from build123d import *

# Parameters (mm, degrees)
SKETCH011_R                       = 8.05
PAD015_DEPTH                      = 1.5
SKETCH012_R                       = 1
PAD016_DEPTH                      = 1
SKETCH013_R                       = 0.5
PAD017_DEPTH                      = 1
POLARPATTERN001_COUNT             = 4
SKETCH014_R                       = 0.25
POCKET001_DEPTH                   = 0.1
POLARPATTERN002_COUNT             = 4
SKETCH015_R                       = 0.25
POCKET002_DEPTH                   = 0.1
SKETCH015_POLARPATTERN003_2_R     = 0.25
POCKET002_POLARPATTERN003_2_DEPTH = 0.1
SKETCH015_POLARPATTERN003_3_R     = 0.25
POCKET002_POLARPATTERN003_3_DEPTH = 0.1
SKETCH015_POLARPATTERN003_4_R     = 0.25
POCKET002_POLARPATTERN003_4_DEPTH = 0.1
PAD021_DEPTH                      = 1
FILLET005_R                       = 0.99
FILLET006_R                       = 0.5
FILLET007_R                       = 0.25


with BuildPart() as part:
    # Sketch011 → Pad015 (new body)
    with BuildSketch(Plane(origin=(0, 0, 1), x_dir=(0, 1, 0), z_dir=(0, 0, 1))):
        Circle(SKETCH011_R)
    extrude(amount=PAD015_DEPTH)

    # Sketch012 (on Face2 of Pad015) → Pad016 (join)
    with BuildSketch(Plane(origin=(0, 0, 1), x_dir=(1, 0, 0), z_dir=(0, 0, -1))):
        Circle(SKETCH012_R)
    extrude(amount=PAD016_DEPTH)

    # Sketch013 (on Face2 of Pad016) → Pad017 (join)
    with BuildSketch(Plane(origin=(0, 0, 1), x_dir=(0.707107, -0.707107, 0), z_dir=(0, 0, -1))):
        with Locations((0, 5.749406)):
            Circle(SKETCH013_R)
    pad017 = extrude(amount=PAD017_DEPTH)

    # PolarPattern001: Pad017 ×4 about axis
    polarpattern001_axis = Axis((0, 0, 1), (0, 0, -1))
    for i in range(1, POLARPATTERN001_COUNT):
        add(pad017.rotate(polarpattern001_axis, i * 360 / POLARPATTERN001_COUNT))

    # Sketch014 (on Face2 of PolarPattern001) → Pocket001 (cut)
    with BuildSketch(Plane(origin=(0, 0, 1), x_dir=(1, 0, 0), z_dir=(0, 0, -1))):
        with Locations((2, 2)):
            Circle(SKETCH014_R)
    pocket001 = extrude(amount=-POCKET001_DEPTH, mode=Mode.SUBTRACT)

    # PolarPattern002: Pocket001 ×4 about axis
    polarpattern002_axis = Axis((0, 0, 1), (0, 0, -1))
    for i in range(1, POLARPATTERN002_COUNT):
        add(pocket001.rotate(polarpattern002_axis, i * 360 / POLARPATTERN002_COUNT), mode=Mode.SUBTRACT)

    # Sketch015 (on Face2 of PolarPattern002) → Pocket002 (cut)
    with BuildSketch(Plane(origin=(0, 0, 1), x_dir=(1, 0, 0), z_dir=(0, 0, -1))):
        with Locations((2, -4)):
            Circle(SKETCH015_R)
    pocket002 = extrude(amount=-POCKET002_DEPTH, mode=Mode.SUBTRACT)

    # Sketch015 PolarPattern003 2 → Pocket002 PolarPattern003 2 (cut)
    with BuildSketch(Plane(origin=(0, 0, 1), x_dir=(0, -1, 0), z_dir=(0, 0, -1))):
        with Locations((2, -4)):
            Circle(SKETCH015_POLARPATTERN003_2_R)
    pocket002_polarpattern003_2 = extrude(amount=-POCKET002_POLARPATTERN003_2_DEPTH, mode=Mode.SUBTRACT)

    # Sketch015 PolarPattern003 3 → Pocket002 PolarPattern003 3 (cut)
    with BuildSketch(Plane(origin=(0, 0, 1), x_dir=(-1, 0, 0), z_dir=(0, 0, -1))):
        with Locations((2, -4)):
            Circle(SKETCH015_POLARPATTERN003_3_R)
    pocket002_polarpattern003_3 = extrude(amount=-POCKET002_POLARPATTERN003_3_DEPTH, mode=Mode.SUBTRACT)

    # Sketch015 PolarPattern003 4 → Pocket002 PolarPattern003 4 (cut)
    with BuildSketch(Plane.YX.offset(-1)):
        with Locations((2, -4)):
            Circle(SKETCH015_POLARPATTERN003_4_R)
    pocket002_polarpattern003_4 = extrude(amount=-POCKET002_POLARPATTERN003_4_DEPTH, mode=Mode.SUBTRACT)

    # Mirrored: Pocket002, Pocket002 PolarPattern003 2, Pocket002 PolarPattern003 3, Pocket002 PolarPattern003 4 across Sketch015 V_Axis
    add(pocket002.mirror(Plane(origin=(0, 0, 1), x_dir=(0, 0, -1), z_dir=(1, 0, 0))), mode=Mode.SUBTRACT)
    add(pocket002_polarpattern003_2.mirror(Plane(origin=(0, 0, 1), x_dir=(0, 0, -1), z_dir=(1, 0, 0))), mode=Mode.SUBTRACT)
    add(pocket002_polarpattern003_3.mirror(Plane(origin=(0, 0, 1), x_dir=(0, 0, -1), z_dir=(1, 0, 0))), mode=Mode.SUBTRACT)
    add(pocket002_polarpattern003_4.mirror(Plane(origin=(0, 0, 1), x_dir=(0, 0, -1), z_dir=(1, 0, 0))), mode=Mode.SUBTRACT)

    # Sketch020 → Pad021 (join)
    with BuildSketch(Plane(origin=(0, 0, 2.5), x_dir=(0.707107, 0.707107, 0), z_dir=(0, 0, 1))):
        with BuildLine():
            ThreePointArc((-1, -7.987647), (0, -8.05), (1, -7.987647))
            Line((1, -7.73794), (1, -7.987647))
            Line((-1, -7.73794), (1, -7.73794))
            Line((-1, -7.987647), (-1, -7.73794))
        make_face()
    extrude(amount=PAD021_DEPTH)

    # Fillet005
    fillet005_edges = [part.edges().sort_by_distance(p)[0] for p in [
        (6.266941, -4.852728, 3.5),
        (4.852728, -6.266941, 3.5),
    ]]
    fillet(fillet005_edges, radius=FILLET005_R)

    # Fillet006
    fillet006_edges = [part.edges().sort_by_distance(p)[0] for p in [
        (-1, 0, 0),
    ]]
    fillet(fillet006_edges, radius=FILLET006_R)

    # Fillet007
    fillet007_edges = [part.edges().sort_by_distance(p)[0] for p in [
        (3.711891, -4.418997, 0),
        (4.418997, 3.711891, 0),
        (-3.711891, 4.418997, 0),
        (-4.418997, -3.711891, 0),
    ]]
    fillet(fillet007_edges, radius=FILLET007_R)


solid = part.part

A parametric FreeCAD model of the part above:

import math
import FreeCAD as App
import Part
import Sketcher

V = App.Vector
Q = App.Units.Quantity


def edges_at(feature, points):
    """Names of the edges that pass closest to the given points."""
    edges = feature.Shape.Edges
    near = lambda p: min(range(len(edges)), key=lambda i: edges[i].distToShape(Part.Vertex(*p))[0])
    return sorted({f"Edge{near(p) + 1}" for p in points})

doc = App.newDocument("Part")
body = doc.addObject("PartDesign::Body", "Body")

# Sketch on XY plane
sketch1 = body.newObject("Sketcher::SketchObject", "Sketch")
sketch1.AttachmentSupport = (doc.getObject("XY_Plane"), [""])
sketch1.MapMode = "FlatFace"
sketch1.AttachmentOffset = App.Placement(V(0, 0, 1), App.Rotation())
sketch1.addGeometry(Part.Circle(V(0, 0, 0), V(0, 0, 1), 8.05), False)
sketch1.addConstraint([
    Sketcher.Constraint("Coincident", 0, 3, -1, 1),
    Sketcher.Constraint("Diameter", 0, 16.1),
])
pad1 = body.newObject("PartDesign::Pad", "Pad")
pad1.Profile = sketch1
pad1.Length = 1.5

# Sketch on XY plane
sketch2 = body.newObject("Sketcher::SketchObject", "Sketch001")
sketch2.AttachmentSupport = (doc.getObject("XY_Plane"), [""])
sketch2.MapMode = "FlatFace"
sketch2.AttachmentOffset = App.Placement(V(0, 0, 1), App.Rotation())
sketch2.addGeometry(Part.Circle(V(0, 0, 0), V(0, 0, 1), 1), False)
sketch2.addConstraint([
    Sketcher.Constraint("Coincident", 0, 3, -1, 1),
    Sketcher.Constraint("Diameter", 0, 2.0),
])
pad2 = body.newObject("PartDesign::Pad", "Pad001")
pad2.Profile = sketch2
pad2.Length = 1
pad2.Reversed = True

# Sketch on XY plane
sketch3 = body.newObject("Sketcher::SketchObject", "Sketch002")
sketch3.AttachmentSupport = (doc.getObject("XY_Plane"), [""])
sketch3.MapMode = "FlatFace"
sketch3.AttachmentOffset = App.Placement(V(0, 0, 1), App.Rotation())
sketch3.addGeometry(Part.Circle(V(-4.065444, -4.065444, 0), V(0, 0, 1), 0.5), False)
sketch3.addConstraint([
    Sketcher.Constraint("Diameter", 0, 1.0),
    Sketcher.Constraint("DistanceX", 0, 3, -1, 1, 4.065444),
    Sketcher.Constraint("DistanceY", 0, 3, -1, 1, 4.065444),
])
pad3 = body.newObject("PartDesign::Pad", "Pad002")
pad3.Profile = sketch3
pad3.Length = 1
pad3.Reversed = True
doc.recompute()

polarpattern = body.newObject("PartDesign::PolarPattern", "PolarPattern")
polarpattern.Originals = [pad3]
polarpattern.Axis = (doc.getObject("Z_Axis"), [""])
polarpattern.Angle = 360
polarpattern.Occurrences = 4
body.Tip = polarpattern

# Sketch on XY plane
sketch4 = body.newObject("Sketcher::SketchObject", "Sketch003")
sketch4.AttachmentSupport = (doc.getObject("XY_Plane"), [""])
sketch4.MapMode = "FlatFace"
sketch4.AttachmentOffset = App.Placement(V(0, 0, 1), App.Rotation())
sketch4.addGeometry(Part.Circle(V(2, -2, 0), V(0, 0, 1), 0.25), False)
sketch4.addConstraint([
    Sketcher.Constraint("Diameter", 0, 0.5),
    Sketcher.Constraint("DistanceX", -1, 1, 0, 3, 2.0),
    Sketcher.Constraint("DistanceY", 0, 3, -1, 1, 2.0),
])
pocket1 = body.newObject("PartDesign::Pocket", "Pocket")
pocket1.Profile = sketch4
pocket1.Length = 0.1
pocket1.Reversed = True
doc.recompute()

polarpattern2 = body.newObject("PartDesign::PolarPattern", "PolarPattern001")
polarpattern2.Originals = [pocket1]
polarpattern2.Axis = (doc.getObject("Z_Axis"), [""])
polarpattern2.Angle = 360
polarpattern2.Occurrences = 4
body.Tip = polarpattern2

# Sketch on XY plane
sketch5 = body.newObject("Sketcher::SketchObject", "Sketch004")
sketch5.AttachmentSupport = (doc.getObject("XY_Plane"), [""])
sketch5.MapMode = "FlatFace"
sketch5.AttachmentOffset = App.Placement(V(0, 0, 1), App.Rotation())
sketch5.addGeometry(Part.Circle(V(2, 4, 0), V(0, 0, 1), 0.25), False)
sketch5.addConstraint([
    Sketcher.Constraint("Diameter", 0, 0.5),
    Sketcher.Constraint("DistanceX", -1, 1, 0, 3, 2.0),
    Sketcher.Constraint("DistanceY", -1, 1, 0, 3, 4.0),
])
pocket2 = body.newObject("PartDesign::Pocket", "Pocket001")
pocket2.Profile = sketch5
pocket2.Length = 0.1
pocket2.Reversed = True

# Sketch on XY plane
sketch6 = body.newObject("Sketcher::SketchObject", "Sketch005")
sketch6.AttachmentSupport = (doc.getObject("XY_Plane"), [""])
sketch6.MapMode = "FlatFace"
sketch6.AttachmentOffset = App.Placement(V(0, 0, 1), App.Rotation())
sketch6.addGeometry(Part.Circle(V(4, -2, 0), V(0, 0, 1), 0.25), False)
sketch6.addConstraint([
    Sketcher.Constraint("Diameter", 0, 0.5),
    Sketcher.Constraint("DistanceX", -1, 1, 0, 3, 4.0),
    Sketcher.Constraint("DistanceY", 0, 3, -1, 1, 2.0),
])
pocket3 = body.newObject("PartDesign::Pocket", "Pocket002")
pocket3.Profile = sketch6
pocket3.Length = 0.1
pocket3.Reversed = True

# Sketch on XY plane
sketch7 = body.newObject("Sketcher::SketchObject", "Sketch006")
sketch7.AttachmentSupport = (doc.getObject("XY_Plane"), [""])
sketch7.MapMode = "FlatFace"
sketch7.AttachmentOffset = App.Placement(V(0, 0, 1), App.Rotation())
sketch7.addGeometry(Part.Circle(V(-2, -4, 0), V(0, 0, 1), 0.25), False)
sketch7.addConstraint([
    Sketcher.Constraint("Diameter", 0, 0.5),
    Sketcher.Constraint("DistanceX", 0, 3, -1, 1, 2.0),
    Sketcher.Constraint("DistanceY", 0, 3, -1, 1, 4.0),
])
pocket4 = body.newObject("PartDesign::Pocket", "Pocket003")
pocket4.Profile = sketch7
pocket4.Length = 0.1
pocket4.Reversed = True

# Sketch on XY plane
sketch8 = body.newObject("Sketcher::SketchObject", "Sketch007")
sketch8.AttachmentSupport = (doc.getObject("XY_Plane"), [""])
sketch8.MapMode = "FlatFace"
sketch8.AttachmentOffset = App.Placement(V(0, 0, 1), App.Rotation())
sketch8.addGeometry(Part.Circle(V(-4, 2, 0), V(0, 0, 1), 0.25), False)
sketch8.addConstraint([
    Sketcher.Constraint("Diameter", 0, 0.5),
    Sketcher.Constraint("DistanceX", 0, 3, -1, 1, 4.0),
    Sketcher.Constraint("DistanceY", -1, 1, 0, 3, 2.0),
])
pocket5 = body.newObject("PartDesign::Pocket", "Pocket004")
pocket5.Profile = sketch8
pocket5.Length = 0.1
pocket5.Reversed = True
doc.recompute()

mirrored = body.newObject("PartDesign::Mirrored", "Mirrored")
mirrored.Originals = [pocket2, pocket3, pocket4, pocket5]
mirrored.MirrorPlane = (doc.getObject("YZ_Plane"), [""])
body.Tip = mirrored

# Sketch on XY plane
sketch9 = body.newObject("Sketcher::SketchObject", "Sketch008")
sketch9.AttachmentSupport = (doc.getObject("XY_Plane"), [""])
sketch9.MapMode = "FlatFace"
sketch9.AttachmentOffset = App.Placement(V(0, 0, 2.5), App.Rotation())
sketch9.addGeometry([
    Part.ArcOfCircle(Part.Circle(V(-0.000026, 0.000026, 0), V(0, 0, 1), 8.050037), math.radians(-52.135889), math.radians(-37.864111)),
    Part.LineSegment(V(6.355226, -4.941013, 0), V(6.178657, -4.764443, 0)),
    Part.LineSegment(V(6.178657, -4.764443, 0), V(4.764443, -6.178657, 0)),
    Part.LineSegment(V(4.764443, -6.178657, 0), V(4.941013, -6.355226, 0)),
], False)
sketch9.addConstraint([
    Sketcher.Constraint("Coincident", 0, 2, 1, 1),
    Sketcher.Constraint("Coincident", 1, 2, 2, 1),
    Sketcher.Constraint("Coincident", 2, 2, 3, 1),
    Sketcher.Constraint("Coincident", 3, 2, 0, 1),
    Sketcher.Constraint("Perpendicular", 1, 2),
    Sketcher.Constraint("Perpendicular", 2, 3),
    Sketcher.Constraint("Equal", 1, 3),
    Sketcher.Constraint("Angle", 1, Q("135 deg")),
    Sketcher.Constraint("Distance", 2, 2.0),
    Sketcher.Constraint("Radius", 0, 8.050037),
    Sketcher.Constraint("DistanceX", 1, 2, 0, 2, 0.17657),
    Sketcher.Constraint("DistanceX", -1, 1, 0, 2, 6.355226),
    Sketcher.Constraint("DistanceY", 0, 2, -1, 1, 4.941013),
])
pad4 = body.newObject("PartDesign::Pad", "Pad003")
pad4.Profile = sketch9
pad4.Length = 1
doc.recompute()

fillet = body.newObject("PartDesign::Fillet", "Fillet")
fillet.Base = (pad4, edges_at(pad4, [(6.267, -4.853, 3.5), (4.853, -6.267, 3.5)]))
fillet.Radius = 0.99
doc.recompute()

fillet2 = body.newObject("PartDesign::Fillet", "Fillet001")
fillet2.Base = (fillet, edges_at(fillet, [(-1, 0, 0)]))
fillet2.Radius = 0.5
doc.recompute()

fillet3 = body.newObject("PartDesign::Fillet", "Fillet002")
fillet3.Base = (fillet2, edges_at(fillet2, [
    (3.712, -4.419, 0),
    (4.419, 3.712, 0),
    (-3.712, 4.419, 0),
    (-4.419, -3.712, 0),
]))
fillet3.Radius = 0.25

doc.recompute()
